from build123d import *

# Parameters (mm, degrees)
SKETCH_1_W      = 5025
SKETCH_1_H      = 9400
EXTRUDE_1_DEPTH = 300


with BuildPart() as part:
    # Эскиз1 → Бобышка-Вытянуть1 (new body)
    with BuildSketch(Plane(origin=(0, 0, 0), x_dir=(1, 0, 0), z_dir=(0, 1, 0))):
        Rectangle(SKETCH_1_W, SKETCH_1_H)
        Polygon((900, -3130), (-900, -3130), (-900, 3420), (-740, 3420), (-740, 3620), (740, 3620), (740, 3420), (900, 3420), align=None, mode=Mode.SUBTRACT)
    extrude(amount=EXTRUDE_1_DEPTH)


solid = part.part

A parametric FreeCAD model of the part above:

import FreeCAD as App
import Part
import Sketcher

V = App.Vector

doc = App.newDocument("Part")
body = doc.addObject("PartDesign::Body", "Body")

sketch1 = body.newObject("Sketcher::SketchObject", "Sketch")
sketch1.AttachmentSupport = (doc.getObject("XZ_Plane"), [""])
sketch1.MapMode = "FlatFace"
sketch1.addGeometry([
    Part.LineSegment(V(-2512, -4700, 0), V(-2512, 4700, 0)),
    Part.LineSegment(V(-2512, 4700, 0), V(2512, 4700, 0)),
    Part.LineSegment(V(2512, 4700, 0), V(2512, -4700, 0)),
    Part.LineSegment(V(2512, -4700, 0), V(-2512, -4700, 0)),
    Part.LineSegment(V(900, -3420, 0), V(900, 3130, 0)),
    Part.LineSegment(V(900, 3130, 0), V(-900, 3130, 0)),
    Part.LineSegment(V(-900, 3130, 0), V(-900, -3420, 0)),
    Part.LineSegment(V(-900, -3420, 0), V(-740, -3420, 0)),
    Part.LineSegment(V(-740, -3420, 0), V(-740, -3620, 0)),
    Part.LineSegment(V(-740, -3620, 0), V(740, -3620, 0)),
    Part.LineSegment(V(740, -3620, 0), V(740, -3420, 0)),
    Part.LineSegment(V(740, -3420, 0), V(900, -3420, 0)),
], False)
sketch1.addConstraint([
    Sketcher.Constraint("Coincident", 0, 2, 1, 1),
    Sketcher.Constraint("Coincident", 1, 2, 2, 1),
    Sketcher.Constraint("Coincident", 2, 2, 3, 1),
    Sketcher.Constraint("Coincident", 3, 2, 0, 1),
    Sketcher.Constraint("Coincident", 4, 2, 5, 1),
    Sketcher.Constraint("Coincident", 5, 2, 6, 1),
    Sketcher.Constraint("Coincident", 6, 2, 7, 1),
    Sketcher.Constraint("Coincident", 7, 2, 8, 1),
    Sketcher.Constraint("Coincident", 8, 2, 9, 1),
    Sketcher.Constraint("Coincident", 9, 2, 10, 1),
    Sketcher.Constraint("Coincident", 10, 2, 11, 1),
    Sketcher.Constraint("Coincident", 11, 2, 4, 1),
    Sketcher.Constraint("Vertical", 0),
    Sketcher.Constraint("Horizontal", 1),
    Sketcher.Constraint("Vertical", 2),
    Sketcher.Constraint("Horizontal", 3),
    Sketcher.Constraint("Vertical", 4),
    Sketcher.Constraint("Horizontal", 5),
    Sketcher.Constraint("Vertical", 6),
    Sketcher.Constraint("Horizontal", 7),
    Sketcher.Constraint("Vertical", 8),
    Sketcher.Constraint("Horizontal", 9),
    Sketcher.Constraint("Vertical", 10),
    Sketcher.Constraint("Horizontal", 11),
    Sketcher.Constraint("Symmetric", 0, 2, 2, 2, -1, 1),
    Sketcher.Constraint("Symmetric", 7, 2, 10, 2, -2),
    Sketcher.Constraint("Equal", 7, 11),
    Sketcher.Constraint("DistanceX", 1, 1, 1, 2, 5025.0),
    Sketcher.Constraint("DistanceX", 5, 2, 5, 1, 1800.0),
    Sketcher.Constraint("DistanceX", 7, 1, 7, 2, 160.0),
    Sketcher.Constraint("DistanceY", 0, 1, 0, 2, 9400.0),
    Sketcher.Constraint("DistanceY", 4, 1, 4, 2, 6550.0),
    Sketcher.Constraint("DistanceY", 8, 2, 8, 1, 200.0),
    Sketcher.Constraint("DistanceY", -1, 1, 4, 2, 3130.0),
])
pad1 = body.newObject("PartDesign::Pad", "Pad")
pad1.Profile = sketch1
pad1.Length = 300
pad1.Reversed = True

doc.recompute()
